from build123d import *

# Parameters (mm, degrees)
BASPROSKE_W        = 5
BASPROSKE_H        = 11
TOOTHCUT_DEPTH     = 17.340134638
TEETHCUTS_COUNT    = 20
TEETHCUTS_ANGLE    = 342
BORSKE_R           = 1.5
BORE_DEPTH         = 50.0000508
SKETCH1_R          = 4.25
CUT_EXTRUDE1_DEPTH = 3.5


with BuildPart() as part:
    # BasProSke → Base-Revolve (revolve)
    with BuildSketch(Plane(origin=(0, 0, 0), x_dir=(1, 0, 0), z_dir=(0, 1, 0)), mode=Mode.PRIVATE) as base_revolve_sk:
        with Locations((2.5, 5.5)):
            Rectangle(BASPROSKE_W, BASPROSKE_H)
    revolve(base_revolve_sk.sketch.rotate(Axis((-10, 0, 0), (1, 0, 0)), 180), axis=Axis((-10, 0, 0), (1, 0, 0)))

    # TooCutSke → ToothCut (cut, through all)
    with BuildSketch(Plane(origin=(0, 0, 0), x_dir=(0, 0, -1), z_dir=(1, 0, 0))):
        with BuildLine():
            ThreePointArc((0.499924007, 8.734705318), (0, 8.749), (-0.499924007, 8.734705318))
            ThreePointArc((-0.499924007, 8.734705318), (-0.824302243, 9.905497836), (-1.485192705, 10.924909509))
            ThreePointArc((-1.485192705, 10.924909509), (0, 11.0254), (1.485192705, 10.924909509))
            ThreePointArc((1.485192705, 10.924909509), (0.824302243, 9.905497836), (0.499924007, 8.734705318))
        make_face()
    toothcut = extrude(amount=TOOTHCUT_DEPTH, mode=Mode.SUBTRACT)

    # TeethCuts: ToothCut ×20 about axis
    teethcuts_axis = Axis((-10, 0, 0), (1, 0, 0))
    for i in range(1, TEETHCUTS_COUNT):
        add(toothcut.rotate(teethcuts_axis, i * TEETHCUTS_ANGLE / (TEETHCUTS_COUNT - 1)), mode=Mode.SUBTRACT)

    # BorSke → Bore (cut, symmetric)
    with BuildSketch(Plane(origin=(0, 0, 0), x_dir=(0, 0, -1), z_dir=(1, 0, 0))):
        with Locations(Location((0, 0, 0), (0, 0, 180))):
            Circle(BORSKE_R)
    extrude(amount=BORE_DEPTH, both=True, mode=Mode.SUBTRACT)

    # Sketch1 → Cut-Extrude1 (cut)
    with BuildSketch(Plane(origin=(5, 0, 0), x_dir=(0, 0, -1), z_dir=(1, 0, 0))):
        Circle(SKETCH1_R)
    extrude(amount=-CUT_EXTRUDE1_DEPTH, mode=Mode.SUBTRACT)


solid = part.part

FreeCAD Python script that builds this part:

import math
import FreeCAD as App
import Part
import Sketcher

V = App.Vector
Q = App.Units.Quantity


def add_polygon(sketch, points):
    """Adds a closed chain of lines whose ends are joined by coincident constraints."""
    first, n = sketch.GeometryCount, len(points)
    for a, b in zip(points, points[1:] + points[:1]):
        sketch.addGeometry(Part.LineSegment(App.Vector(*a, 0), App.Vector(*b, 0)), False)
    for i in range(n):
        sketch.addConstraint(Sketcher.Constraint("Coincident", first + i, 2, first + (i + 1) % n, 1))

doc = App.newDocument("Part")
body = doc.addObject("PartDesign::Body", "Body")

# Sketch on XZ plane
sketch1 = body.newObject("Sketcher::SketchObject", "Sketch")
sketch1.AttachmentSupport = (doc.getObject("XZ_Plane"), [""])
sketch1.MapMode = "FlatFace"
add_polygon(sketch1, [(0, -11), (0, 0), (5, 0), (5, -11)])  # lines 0-3
sketch1.addConstraint([
    Sketcher.Constraint("Vertical", 0),
    Sketcher.Constraint("Horizontal", 1),
    Sketcher.Constraint("Vertical", 2),
    Sketcher.Constraint("Horizontal", 3),
    Sketcher.Constraint("Coincident", 0, 2, -1, 1),
    Sketcher.Constraint("DistanceX", 1, 1, 1, 2, Q("5 mm")),
    Sketcher.Constraint("DistanceY", 0, 1, 0, 2, Q("11 mm")),
])
revolution = body.newObject("PartDesign::Revolution", "Revolution")
revolution.Profile = sketch1
revolution.ReferenceAxis = (sketch1, ["H_Axis"])
revolution.Angle = 360

# Sketch on YZ plane
sketch2 = body.newObject("Sketcher::SketchObject", "Sketch001")
sketch2.AttachmentSupport = (doc.getObject("YZ_Plane"), [""])
sketch2.MapMode = "FlatFace"
sketch2.addGeometry([
    Part.ArcOfCircle(Part.Circle(V(0, 0, 0), V(0, 0, 1), 8.7), math.radians(-3.28), math.radians(3.28)),
    Part.ArcOfCircle(Part.Circle(V(8.3, -4.5, 0), V(0, 0, 1), 4), math.radians(48), math.radians(83)),
    Part.ArcOfCircle(Part.Circle(V(0, 0, 0), V(0, 0, 1), 11), math.radians(-7.74), math.radians(7.74)),
    Part.ArcOfCircle(Part.Circle(V(8.3, 4.5, 0), V(0, 0, 1), 4), math.radians(-83), math.radians(-48)),
], False)
sketch2.addConstraint([
    Sketcher.Constraint("Coincident", 0, 1, 1, 2),
    Sketcher.Constraint("Coincident", 1, 1, 2, 1),
    Sketcher.Constraint("Coincident", 2, 2, 3, 2),
    Sketcher.Constraint("Coincident", 3, 1, 0, 2),
    Sketcher.Constraint("Coincident", 0, 3, -1, 1),
    Sketcher.Constraint("Coincident", 2, 3, -1, 1),
    Sketcher.Constraint("Equal", 1, 3),
    Sketcher.Constraint("Symmetric", 1, 3, 3, 3, -1),
    Sketcher.Constraint("Radius", 1, Q("4 mm")),
    Sketcher.Constraint("Radius", 0, Q("8.749 mm")),
    Sketcher.Constraint("Radius", 2, Q("11.0254 mm")),
    Sketcher.Constraint("DistanceY", 1, 3, -1, 1, Q("4.47219 mm")),
    Sketcher.Constraint("DistanceX", -1, 1, 1, 1, Q("10.92491 mm")),
])
pocket1 = body.newObject("PartDesign::Pocket", "Pocket")
pocket1.Profile = sketch2
pocket1.Type = "ThroughAll"
pocket1.Reversed = True
doc.recompute()

polarpattern = body.newObject("PartDesign::PolarPattern", "PolarPattern")
polarpattern.Originals = [pocket1]
polarpattern.Axis = (doc.getObject("X_Axis"), [""])
polarpattern.Angle = 360
polarpattern.Occurrences = 20
body.Tip = polarpattern

# Sketch on YZ plane
sketch3 = body.newObject("Sketcher::SketchObject", "Sketch002")
sketch3.AttachmentSupport = (doc.getObject("YZ_Plane"), [""])
sketch3.MapMode = "FlatFace"
sketch3.addGeometry(Part.Circle(V(0, 0, 0), V(0, 0, 1), 1.5), False)
sketch3.addConstraint([
    Sketcher.Constraint("Coincident", 0, 3, -1, 1),
    Sketcher.Constraint("Diameter", 0, Q("3 mm")),
])
pocket2 = body.newObject("PartDesign::Pocket", "Pocket001")
pocket2.Profile = sketch3
pocket2.Length = 100.000102
pocket2.Midplane = True

# Sketch on YZ plane
sketch4 = body.newObject("Sketcher::SketchObject", "Sketch003")
sketch4.AttachmentSupport = (doc.getObject("YZ_Plane"), [""])
sketch4.MapMode = "FlatFace"
sketch4.AttachmentOffset = App.Placement(V(0, 0, 5), App.Rotation())
sketch4.addGeometry(Part.Circle(V(0, 0, 0), V(0, 0, 1), 4.2), False)
sketch4.addConstraint([
    Sketcher.Constraint("Coincident", 0, 3, -1, 1),
    Sketcher.Constraint("Diameter", 0, Q("8.5 mm")),
])
pocket3 = body.newObject("PartDesign::Pocket", "Pocket002")
pocket3.Profile = sketch4
pocket3.Length = 3.5

doc.recompute()
